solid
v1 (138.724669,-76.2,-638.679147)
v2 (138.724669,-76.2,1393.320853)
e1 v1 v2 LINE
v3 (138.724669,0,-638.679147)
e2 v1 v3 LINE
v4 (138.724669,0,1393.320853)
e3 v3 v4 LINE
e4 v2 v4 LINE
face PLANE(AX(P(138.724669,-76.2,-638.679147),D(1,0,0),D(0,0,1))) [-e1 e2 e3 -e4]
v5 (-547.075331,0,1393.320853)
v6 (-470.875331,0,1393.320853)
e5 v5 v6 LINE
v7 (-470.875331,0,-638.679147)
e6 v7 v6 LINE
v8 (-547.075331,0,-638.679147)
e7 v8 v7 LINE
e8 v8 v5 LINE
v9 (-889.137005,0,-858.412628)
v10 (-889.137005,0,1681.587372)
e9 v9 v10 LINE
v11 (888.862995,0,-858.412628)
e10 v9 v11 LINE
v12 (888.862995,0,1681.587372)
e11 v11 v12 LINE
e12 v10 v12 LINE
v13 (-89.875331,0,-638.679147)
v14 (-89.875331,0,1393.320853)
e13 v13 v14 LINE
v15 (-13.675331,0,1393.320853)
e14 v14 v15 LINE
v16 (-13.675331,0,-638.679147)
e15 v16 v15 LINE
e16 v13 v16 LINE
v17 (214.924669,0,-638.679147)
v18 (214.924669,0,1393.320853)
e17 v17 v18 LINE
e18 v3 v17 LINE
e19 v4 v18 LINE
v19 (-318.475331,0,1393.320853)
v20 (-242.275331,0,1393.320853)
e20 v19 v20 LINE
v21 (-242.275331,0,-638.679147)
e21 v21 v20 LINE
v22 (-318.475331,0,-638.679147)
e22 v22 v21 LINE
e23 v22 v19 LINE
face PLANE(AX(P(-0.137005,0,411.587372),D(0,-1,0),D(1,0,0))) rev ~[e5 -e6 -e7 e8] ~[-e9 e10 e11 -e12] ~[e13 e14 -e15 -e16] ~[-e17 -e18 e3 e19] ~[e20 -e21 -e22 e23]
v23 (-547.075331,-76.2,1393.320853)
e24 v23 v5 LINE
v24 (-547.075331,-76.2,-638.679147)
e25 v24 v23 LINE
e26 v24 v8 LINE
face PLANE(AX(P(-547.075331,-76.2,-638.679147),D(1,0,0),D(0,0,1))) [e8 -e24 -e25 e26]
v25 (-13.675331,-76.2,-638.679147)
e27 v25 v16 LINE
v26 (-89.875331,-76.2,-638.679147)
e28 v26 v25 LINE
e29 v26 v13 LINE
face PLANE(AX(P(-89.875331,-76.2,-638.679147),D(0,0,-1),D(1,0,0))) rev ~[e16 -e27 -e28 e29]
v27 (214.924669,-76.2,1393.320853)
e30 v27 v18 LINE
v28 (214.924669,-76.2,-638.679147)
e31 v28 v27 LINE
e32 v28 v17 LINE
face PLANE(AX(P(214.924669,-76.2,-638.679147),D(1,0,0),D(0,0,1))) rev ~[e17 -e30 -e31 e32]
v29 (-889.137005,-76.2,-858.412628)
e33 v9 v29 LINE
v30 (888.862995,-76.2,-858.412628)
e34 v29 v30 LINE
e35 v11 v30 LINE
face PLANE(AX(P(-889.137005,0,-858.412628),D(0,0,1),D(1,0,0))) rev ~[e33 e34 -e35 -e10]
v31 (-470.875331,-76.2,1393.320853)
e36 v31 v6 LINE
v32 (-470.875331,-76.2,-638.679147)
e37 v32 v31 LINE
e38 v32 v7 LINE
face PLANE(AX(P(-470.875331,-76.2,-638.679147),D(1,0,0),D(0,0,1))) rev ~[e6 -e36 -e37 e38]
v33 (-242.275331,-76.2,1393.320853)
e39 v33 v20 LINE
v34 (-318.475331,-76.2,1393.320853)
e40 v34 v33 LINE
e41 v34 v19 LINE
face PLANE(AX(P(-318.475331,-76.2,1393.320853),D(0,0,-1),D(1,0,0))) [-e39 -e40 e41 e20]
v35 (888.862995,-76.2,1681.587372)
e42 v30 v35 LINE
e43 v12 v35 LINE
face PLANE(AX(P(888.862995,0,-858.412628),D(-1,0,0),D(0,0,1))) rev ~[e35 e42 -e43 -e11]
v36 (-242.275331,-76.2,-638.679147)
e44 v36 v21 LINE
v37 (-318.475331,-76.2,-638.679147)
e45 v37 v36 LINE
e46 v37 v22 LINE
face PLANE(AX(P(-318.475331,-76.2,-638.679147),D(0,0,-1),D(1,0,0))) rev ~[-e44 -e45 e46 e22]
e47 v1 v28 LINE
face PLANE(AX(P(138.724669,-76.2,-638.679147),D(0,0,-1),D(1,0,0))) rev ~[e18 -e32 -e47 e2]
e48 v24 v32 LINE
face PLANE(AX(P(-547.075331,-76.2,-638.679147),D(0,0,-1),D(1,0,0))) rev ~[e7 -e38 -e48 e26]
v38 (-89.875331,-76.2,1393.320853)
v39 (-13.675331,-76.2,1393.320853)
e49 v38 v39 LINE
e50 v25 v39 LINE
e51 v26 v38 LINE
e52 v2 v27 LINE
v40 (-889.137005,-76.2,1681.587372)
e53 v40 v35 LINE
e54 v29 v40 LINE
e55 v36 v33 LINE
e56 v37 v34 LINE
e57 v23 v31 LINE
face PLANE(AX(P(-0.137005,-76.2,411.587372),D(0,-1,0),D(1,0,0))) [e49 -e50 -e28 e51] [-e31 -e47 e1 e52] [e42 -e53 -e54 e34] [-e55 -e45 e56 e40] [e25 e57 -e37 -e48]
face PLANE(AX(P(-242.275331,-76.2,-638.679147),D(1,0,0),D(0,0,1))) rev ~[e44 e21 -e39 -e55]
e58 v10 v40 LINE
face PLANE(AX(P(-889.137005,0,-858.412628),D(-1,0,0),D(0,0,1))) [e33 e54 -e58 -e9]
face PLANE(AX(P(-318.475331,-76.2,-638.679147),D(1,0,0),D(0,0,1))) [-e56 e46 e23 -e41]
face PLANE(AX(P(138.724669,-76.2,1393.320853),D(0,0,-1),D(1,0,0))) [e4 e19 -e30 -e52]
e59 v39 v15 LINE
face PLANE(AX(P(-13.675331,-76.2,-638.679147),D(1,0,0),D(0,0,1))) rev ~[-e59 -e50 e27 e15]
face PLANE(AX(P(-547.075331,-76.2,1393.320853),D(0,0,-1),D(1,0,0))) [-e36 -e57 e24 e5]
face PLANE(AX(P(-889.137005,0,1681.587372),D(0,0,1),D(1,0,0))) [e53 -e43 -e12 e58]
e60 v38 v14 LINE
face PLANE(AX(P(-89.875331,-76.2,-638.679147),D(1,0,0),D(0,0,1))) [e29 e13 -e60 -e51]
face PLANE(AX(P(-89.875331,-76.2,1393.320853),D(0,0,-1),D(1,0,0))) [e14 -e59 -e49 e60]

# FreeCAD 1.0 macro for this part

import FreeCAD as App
import Part
import Sketcher

V = App.Vector
Q = App.Units.Quantity

doc = App.newDocument("Part")
params = doc.addObject("Spreadsheet::Sheet", "Params")
for row, (alias, value) in enumerate([
    ("sketch1_width", "70 in"),
    ("sketch1_height", "100 in"),
    ("pad1_length", "3 in"),
    ("sketch2_width", "3 in"),
    ("sketch2_height", "80 in"),
], start=1):
    params.set(f"A{row}", alias)
    params.set(f"B{row}", "=" + value)
    params.setAlias(f"B{row}", alias)

body = doc.addObject("PartDesign::Body", "Body")

# Sketch on XZ plane
sketch1 = doc.addObject("Sketcher::SketchObject", "Sketch")
body.addObject(sketch1)
sketch1.AttachmentSupport = (doc.XZ_Plane, [""])
sketch1.MapMode = "FlatFace"
sketch1.addGeometry(Part.LineSegment(V(-889, 1682, 0), V(-889, -858, 0)), False)
sketch1.addGeometry(Part.LineSegment(V(-889, -858, 0), V(889, -858, 0)), False)
sketch1.addGeometry(Part.LineSegment(V(889, -858, 0), V(889, 1682, 0)), False)
sketch1.addGeometry(Part.LineSegment(V(889, 1682, 0), V(-889, 1682, 0)), False)
sketch1.addConstraint(Sketcher.Constraint("Coincident", 0, 2, 1, 1))
sketch1.addConstraint(Sketcher.Constraint("Coincident", 1, 2, 2, 1))
sketch1.addConstraint(Sketcher.Constraint("Coincident", 2, 2, 3, 1))
sketch1.addConstraint(Sketcher.Constraint("Coincident", 3, 2, 0, 1))
sketch1.addConstraint(Sketcher.Constraint("Vertical", 0))
sketch1.addConstraint(Sketcher.Constraint("Horizontal", 1))
sketch1.addConstraint(Sketcher.Constraint("Vertical", 2))
sketch1.addConstraint(Sketcher.Constraint("Horizontal", 3))
sketch1.addConstraint(Sketcher.Constraint("DistanceX", 1, 1, 1, 2, Q("70 in")))
sketch1.addConstraint(Sketcher.Constraint("DistanceY", 0, 2, 0, 1, Q("100 in")))
sketch1.addConstraint(Sketcher.Constraint("DistanceY", 0, 2, -1, 1, Q("858.412628 mm")))
sketch1.addConstraint(Sketcher.Constraint("DistanceX", 0, 2, -1, 1, Q("889.137005 mm")))
sketch1.setExpression("Constraints[8]", "Params.sketch1_width")
sketch1.setExpression("Constraints[9]", "Params.sketch1_height")
pad1 = doc.addObject("PartDesign::Pad", "Pad")
body.addObject(pad1)
pad1.Profile = sketch1
pad1.setExpression("Length", "Params.pad1_length")

# Sketch on XZ plane
sketch2 = doc.addObject("Sketcher::SketchObject", "Sketch001")
body.addObject(sketch2)
sketch2.AttachmentSupport = (doc.XZ_Plane, [""])
sketch2.MapMode = "FlatFace"
sketch2.AttachmentOffset = App.Placement(V(0, 0, 3 * 25.4), App.Rotation())
sketch2.addGeometry(Part.LineSegment(V(-547, 1393, 0), V(-547, -639, 0)), False)
sketch2.addGeometry(Part.LineSegment(V(-547, -639, 0), V(-471, -639, 0)), False)
sketch2.addGeometry(Part.LineSegment(V(-471, -639, 0), V(-471, 1393, 0)), False)
sketch2.addGeometry(Part.LineSegment(V(-471, 1393, 0), V(-547, 1393, 0)), False)
sketch2.addGeometry(Part.LineSegment(V(-318, 1393, 0), V(-318, -639, 0)), False)
sketch2.addGeometry(Part.LineSegment(V(-318, -639, 0), V(-242, -639, 0)), False)
sketch2.addGeometry(Part.LineSegment(V(-242, -639, 0), V(-242, 1393, 0)), False)
sketch2.addGeometry(Part.LineSegment(V(-242, 1393, 0), V(-318, 1393, 0)), False)
sketch2.addGeometry(Part.LineSegment(V(-90, 1393, 0), V(-90, -639, 0)), False)
sketch2.addGeometry(Part.LineSegment(V(-90, -639, 0), V(-14, -639, 0)), False)
sketch2.addGeometry(Part.LineSegment(V(-14, -639, 0), V(-14, 1393, 0)), False)
sketch2.addGeometry(Part.LineSegment(V(-14, 1393, 0), V(-90, 1393, 0)), False)
sketch2.addGeometry(Part.LineSegment(V(139, 1393, 0), V(139, -639, 0)), False)
sketch2.addGeometry(Part.LineSegment(V(139, -639, 0), V(215, -639, 0)), False)
sketch2.addGeometry(Part.LineSegment(V(215, -639, 0), V(215, 1393, 0)), False)
sketch2.addGeometry(Part.LineSegment(V(215, 1393, 0), V(139, 1393, 0)), False)
sketch2.addConstraint(Sketcher.Constraint("Coincident", 0, 2, 1, 1))
sketch2.addConstraint(Sketcher.Constraint("Coincident", 1, 2, 2, 1))
sketch2.addConstraint(Sketcher.Constraint("Coincident", 2, 2, 3, 1))
sketch2.addConstraint(Sketcher.Constraint("Coincident", 3, 2, 0, 1))
sketch2.addConstraint(Sketcher.Constraint("Coincident", 4, 2, 5, 1))
sketch2.addConstraint(Sketcher.Constraint("Coincident", 5, 2, 6, 1))
sketch2.addConstraint(Sketcher.Constraint("Coincident", 6, 2, 7, 1))
sketch2.addConstraint(Sketcher.Constraint("Coincident", 7, 2, 4, 1))
sketch2.addConstraint(Sketcher.Constraint("Coincident", 8, 2, 9, 1))
sketch2.addConstraint(Sketcher.Constraint("Coincident", 9, 2, 10, 1))
sketch2.addConstraint(Sketcher.Constraint("Coincident", 10, 2, 11, 1))
sketch2.addConstraint(Sketcher.Constraint("Coincident", 11, 2, 8, 1))
sketch2.addConstraint(Sketcher.Constraint("Coincident", 12, 2, 13, 1))
sketch2.addConstraint(Sketcher.Constraint("Coincident", 13, 2, 14, 1))
sketch2.addConstraint(Sketcher.Constraint("Coincident", 14, 2, 15, 1))
sketch2.addConstraint(Sketcher.Constraint("Coincident", 15, 2, 12, 1))
sketch2.addConstraint(Sketcher.Constraint("Vertical", 0))
sketch2.addConstraint(Sketcher.Constraint("Horizontal", 1))
sketch2.addConstraint(Sketcher.Constraint("Vertical", 2))
sketch2.addConstraint(Sketcher.Constraint("Horizontal", 3))
sketch2.addConstraint(Sketcher.Constraint("Vertical", 4))
sketch2.addConstraint(Sketcher.Constraint("Horizontal", 5))
sketch2.addConstraint(Sketcher.Constraint("Vertical", 6))
sketch2.addConstraint(Sketcher.Constraint("Horizontal", 7))
sketch2.addConstraint(Sketcher.Constraint("Vertical", 8))
sketch2.addConstraint(Sketcher.Constraint("Horizontal", 9))
sketch2.addConstraint(Sketcher.Constraint("Vertical", 10))
sketch2.addConstraint(Sketcher.Constraint("Horizontal", 11))
sketch2.addConstraint(Sketcher.Constraint("Vertical", 12))
sketch2.addConstraint(Sketcher.Constraint("Horizontal", 13))
sketch2.addConstraint(Sketcher.Constraint("Vertical", 14))
sketch2.addConstraint(Sketcher.Constraint("Horizontal", 15))
sketch2.addConstraint(Sketcher.Constraint("Horizontal", 1, 2, 4, 2))
sketch2.addConstraint(Sketcher.Constraint("Horizontal", 3, 2, 6, 2))
sketch2.addConstraint(Sketcher.Constraint("Horizontal", 5, 2, 8, 2))
sketch2.addConstraint(Sketcher.Constraint("Horizontal", 7, 2, 10, 2))
sketch2.addConstraint(Sketcher.Constraint("Horizontal", 9, 2, 12, 2))
sketch2.addConstraint(Sketcher.Constraint("Horizontal", 11, 2, 14, 2))
sketch2.addConstraint(Sketcher.Constraint("Equal", 3, 5))
sketch2.addConstraint(Sketcher.Constraint("Equal", 7, 9))
sketch2.addConstraint(Sketcher.Constraint("Equal", 11, 13))
sketch2.addConstraint(Sketcher.Constraint("DistanceX", 1, 1, 1, 2, Q("3 in")))
sketch2.addConstraint(Sketcher.Constraint("DistanceY", 0, 2, 0, 1, Q("80 in")))
sketch2.addConstraint(Sketcher.Constraint("DistanceX", 1, 2, 4, 2, Q("6 in")))
sketch2.addConstraint(Sketcher.Constraint("DistanceX", 5, 2, 8, 2, Q("6 in")))
sketch2.addConstraint(Sketcher.Constraint("DistanceX", 9, 2, 12, 2, Q("6 in")))
sketch2.addConstraint(Sketcher.Constraint("DistanceX", 0, 2, -1, 1, Q("547.075331 mm")))
sketch2.addConstraint(Sketcher.Constraint("DistanceY", 0, 2, -1, 1, Q("638.679147 mm")))
sketch2.setExpression("Constraints[41]", "Params.sketch2_width")
sketch2.setExpression("Constraints[42]", "Params.sketch2_height")
pocket1 = doc.addObject("PartDesign::Pocket", "Pocket")
body.addObject(pocket1)
pocket1.Profile = sketch2
pocket1.Type = "ThroughAll"

doc.recompute()
